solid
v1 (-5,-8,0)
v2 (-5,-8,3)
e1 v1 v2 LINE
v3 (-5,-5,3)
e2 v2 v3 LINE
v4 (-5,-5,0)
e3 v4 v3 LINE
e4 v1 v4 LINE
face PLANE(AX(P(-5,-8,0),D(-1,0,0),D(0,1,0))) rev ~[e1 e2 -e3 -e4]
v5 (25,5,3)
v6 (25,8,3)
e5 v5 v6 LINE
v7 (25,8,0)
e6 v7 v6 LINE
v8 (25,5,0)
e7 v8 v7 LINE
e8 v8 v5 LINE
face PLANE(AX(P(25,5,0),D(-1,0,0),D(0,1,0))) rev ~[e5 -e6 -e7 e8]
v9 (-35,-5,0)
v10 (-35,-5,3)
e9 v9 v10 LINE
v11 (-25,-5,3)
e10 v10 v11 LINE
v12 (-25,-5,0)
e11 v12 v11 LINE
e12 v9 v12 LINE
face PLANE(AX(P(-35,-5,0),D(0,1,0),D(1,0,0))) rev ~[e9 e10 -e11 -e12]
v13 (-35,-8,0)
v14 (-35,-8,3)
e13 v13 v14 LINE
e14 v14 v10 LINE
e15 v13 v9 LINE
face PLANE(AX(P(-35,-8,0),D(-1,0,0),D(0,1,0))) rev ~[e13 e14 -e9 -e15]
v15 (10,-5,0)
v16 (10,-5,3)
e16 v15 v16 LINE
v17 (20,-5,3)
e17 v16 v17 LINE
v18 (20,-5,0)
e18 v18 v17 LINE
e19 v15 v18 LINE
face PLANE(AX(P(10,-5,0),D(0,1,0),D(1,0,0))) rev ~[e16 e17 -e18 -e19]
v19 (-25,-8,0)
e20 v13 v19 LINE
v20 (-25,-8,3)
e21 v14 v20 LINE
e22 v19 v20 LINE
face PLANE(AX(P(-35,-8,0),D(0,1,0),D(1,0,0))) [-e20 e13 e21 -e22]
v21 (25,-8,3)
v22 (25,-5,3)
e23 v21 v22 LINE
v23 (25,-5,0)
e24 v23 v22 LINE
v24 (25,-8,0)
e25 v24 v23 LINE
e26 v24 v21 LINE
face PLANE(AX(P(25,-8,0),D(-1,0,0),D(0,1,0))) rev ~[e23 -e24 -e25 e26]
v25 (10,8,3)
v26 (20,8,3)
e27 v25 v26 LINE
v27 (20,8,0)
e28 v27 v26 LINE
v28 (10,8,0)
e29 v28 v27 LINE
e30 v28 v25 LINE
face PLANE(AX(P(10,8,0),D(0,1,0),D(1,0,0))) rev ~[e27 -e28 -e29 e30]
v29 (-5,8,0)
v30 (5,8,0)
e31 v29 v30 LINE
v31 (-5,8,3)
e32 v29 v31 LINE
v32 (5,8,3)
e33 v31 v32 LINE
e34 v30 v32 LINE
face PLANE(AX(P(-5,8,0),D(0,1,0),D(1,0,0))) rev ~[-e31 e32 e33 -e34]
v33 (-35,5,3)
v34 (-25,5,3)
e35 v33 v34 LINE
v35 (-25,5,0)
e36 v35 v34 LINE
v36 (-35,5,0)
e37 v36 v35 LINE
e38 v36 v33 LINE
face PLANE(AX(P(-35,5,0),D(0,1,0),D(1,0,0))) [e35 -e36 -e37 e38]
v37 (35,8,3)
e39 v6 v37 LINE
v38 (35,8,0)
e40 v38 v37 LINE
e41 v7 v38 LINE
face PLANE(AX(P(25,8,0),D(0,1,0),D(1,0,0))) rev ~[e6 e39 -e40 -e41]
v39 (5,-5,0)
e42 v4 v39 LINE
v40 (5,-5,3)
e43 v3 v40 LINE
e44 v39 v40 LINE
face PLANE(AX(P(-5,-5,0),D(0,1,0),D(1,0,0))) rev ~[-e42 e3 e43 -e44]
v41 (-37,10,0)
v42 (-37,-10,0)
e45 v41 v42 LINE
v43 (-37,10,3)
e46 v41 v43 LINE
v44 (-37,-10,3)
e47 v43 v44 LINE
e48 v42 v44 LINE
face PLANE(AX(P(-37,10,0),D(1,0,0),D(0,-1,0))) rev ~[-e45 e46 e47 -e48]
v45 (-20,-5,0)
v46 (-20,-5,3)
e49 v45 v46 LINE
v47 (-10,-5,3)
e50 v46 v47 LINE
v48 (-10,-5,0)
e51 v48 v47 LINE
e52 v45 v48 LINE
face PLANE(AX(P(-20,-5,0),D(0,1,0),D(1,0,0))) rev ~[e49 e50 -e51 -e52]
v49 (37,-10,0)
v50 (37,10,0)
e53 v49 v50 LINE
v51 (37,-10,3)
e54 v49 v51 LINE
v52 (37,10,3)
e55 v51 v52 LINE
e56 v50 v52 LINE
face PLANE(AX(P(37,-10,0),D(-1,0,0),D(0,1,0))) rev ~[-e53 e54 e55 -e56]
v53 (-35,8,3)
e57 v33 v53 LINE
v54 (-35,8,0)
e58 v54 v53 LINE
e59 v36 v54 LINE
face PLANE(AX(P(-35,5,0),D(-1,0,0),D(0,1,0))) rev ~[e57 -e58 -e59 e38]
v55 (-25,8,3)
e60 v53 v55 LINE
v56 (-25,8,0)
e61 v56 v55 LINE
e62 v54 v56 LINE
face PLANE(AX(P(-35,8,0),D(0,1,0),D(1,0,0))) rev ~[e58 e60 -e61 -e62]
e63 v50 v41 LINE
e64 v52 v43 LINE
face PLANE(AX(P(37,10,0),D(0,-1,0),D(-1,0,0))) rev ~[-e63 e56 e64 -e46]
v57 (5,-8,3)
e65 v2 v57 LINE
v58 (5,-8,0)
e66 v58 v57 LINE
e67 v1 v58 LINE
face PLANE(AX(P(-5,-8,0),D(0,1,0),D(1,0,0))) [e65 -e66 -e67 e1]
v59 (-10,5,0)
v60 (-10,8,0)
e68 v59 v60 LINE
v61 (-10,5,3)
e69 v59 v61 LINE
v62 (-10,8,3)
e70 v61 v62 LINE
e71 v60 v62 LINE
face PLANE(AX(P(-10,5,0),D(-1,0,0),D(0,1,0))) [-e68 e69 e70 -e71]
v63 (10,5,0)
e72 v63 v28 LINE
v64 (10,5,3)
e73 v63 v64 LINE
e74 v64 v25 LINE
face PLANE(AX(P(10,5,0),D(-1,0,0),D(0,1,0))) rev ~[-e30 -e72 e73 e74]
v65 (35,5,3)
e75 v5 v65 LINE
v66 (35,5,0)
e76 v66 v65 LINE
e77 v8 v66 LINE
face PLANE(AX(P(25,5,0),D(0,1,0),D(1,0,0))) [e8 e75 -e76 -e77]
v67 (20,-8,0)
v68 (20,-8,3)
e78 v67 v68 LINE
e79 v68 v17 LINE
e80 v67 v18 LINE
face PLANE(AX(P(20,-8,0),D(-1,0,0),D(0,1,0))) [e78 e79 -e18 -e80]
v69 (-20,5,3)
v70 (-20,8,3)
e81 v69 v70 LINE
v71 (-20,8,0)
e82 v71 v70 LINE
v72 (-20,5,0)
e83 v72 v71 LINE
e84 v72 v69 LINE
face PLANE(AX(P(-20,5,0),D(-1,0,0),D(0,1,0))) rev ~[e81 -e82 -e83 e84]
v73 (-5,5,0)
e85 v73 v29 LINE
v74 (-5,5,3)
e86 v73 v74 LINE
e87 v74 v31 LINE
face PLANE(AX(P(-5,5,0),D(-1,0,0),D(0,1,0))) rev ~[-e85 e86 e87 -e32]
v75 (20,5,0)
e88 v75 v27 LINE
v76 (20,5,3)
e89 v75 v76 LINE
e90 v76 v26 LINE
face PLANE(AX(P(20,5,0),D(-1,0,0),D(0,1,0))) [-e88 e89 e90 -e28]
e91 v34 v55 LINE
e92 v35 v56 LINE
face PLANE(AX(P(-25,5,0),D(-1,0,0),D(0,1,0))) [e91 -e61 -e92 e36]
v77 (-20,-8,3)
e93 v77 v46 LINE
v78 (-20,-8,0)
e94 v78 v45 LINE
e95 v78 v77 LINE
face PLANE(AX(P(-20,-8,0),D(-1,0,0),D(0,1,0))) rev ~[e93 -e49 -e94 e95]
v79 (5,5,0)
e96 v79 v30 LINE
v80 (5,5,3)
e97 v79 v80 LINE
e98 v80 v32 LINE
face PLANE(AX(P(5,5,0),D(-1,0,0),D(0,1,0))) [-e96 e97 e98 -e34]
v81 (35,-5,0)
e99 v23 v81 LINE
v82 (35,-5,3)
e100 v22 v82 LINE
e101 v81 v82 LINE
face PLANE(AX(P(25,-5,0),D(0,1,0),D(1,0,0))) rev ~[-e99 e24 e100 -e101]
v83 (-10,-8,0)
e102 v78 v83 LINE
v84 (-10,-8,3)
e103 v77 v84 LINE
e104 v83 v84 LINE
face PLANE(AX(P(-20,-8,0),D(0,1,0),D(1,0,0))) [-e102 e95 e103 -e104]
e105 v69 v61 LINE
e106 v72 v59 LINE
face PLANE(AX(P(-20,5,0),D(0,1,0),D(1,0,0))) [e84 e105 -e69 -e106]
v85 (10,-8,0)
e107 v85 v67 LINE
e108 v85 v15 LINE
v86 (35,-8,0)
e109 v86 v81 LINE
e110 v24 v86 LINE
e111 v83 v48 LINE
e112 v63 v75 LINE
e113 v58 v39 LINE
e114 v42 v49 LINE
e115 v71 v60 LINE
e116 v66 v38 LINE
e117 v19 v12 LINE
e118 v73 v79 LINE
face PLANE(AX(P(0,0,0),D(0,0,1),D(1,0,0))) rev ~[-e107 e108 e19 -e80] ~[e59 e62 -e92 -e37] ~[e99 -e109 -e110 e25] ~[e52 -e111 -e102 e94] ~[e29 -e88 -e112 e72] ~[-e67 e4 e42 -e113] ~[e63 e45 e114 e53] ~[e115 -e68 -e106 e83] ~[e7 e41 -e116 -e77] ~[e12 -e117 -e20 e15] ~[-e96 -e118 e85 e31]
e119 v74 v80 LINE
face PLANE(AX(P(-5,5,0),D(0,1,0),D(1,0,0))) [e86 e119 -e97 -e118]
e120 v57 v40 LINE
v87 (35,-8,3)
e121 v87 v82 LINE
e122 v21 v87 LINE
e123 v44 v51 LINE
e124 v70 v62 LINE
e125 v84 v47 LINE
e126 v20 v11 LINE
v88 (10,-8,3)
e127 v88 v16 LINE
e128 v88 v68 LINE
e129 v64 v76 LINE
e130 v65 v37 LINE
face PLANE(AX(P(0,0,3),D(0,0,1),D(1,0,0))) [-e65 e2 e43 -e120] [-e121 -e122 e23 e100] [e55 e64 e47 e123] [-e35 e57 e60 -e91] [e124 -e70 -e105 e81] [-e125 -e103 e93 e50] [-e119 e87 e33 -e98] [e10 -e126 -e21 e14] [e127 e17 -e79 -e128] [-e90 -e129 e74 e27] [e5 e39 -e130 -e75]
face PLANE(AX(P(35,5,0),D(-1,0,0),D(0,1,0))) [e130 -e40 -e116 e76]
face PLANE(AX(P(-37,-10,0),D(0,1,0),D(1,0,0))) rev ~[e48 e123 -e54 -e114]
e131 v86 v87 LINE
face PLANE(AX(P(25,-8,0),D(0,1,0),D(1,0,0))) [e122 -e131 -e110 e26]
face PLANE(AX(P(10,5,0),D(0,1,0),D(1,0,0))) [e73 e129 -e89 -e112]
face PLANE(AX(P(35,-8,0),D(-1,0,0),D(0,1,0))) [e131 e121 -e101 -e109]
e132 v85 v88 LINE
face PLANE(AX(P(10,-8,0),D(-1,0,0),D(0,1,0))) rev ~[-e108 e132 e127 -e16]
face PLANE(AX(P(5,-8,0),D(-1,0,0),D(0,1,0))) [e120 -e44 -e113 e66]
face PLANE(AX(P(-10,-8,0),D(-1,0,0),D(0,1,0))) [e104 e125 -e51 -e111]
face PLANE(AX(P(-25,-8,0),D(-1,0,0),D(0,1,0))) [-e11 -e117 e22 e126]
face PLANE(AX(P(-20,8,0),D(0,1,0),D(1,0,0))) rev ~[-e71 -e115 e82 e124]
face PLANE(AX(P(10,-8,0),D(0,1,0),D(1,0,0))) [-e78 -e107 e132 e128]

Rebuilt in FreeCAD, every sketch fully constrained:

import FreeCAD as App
import Part
import Sketcher
Q = App.Units.Quantity

doc = App.newDocument("Part")
params = doc.addObject("Spreadsheet::Sheet", "Params")
for row, (alias, value) in enumerate([
    ("sketch1_width", "74 mm"),
    ("sketch1_width2", "10 mm"),
    ("sketch1_height", "20 mm"),
    ("sketch1_height2", "3 mm"),
    ("pad1_length", "3 mm"),
], start=1):
    params.set(f"A{row}", alias)
    params.set(f"B{row}", "=" + value)
    params.setAlias(f"B{row}", alias)

body = doc.addObject("PartDesign::Body", "Body")

sketch1 = body.newObject("Sketcher::SketchObject", "Sketch")
sketch1.AttachmentSupport = (doc.getObject("XY_Plane"), [""])
sketch1.MapMode = "FlatFace"
sketch1.addGeometry([
    Part.LineSegment(App.Vector(-37, -10, 0), App.Vector(37, -10, 0)),
    Part.LineSegment(App.Vector(37, -10, 0), App.Vector(37, 10, 0)),
    Part.LineSegment(App.Vector(37, 10, 0), App.Vector(-37, 10, 0)),
    Part.LineSegment(App.Vector(-37, 10, 0), App.Vector(-37, -10, 0)),
    Part.LineSegment(App.Vector(-25, -8, 0), App.Vector(-35, -8, 0)),
    Part.LineSegment(App.Vector(-35, -8, 0), App.Vector(-35, -5, 0)),
    Part.LineSegment(App.Vector(-35, -5, 0), App.Vector(-25, -5, 0)),
    Part.LineSegment(App.Vector(-25, -5, 0), App.Vector(-25, -8, 0)),
    Part.LineSegment(App.Vector(-10, -8, 0), App.Vector(-20, -8, 0)),
    Part.LineSegment(App.Vector(-20, -8, 0), App.Vector(-20, -5, 0)),
    Part.LineSegment(App.Vector(-20, -5, 0), App.Vector(-10, -5, 0)),
    Part.LineSegment(App.Vector(-10, -5, 0), App.Vector(-10, -8, 0)),
    Part.LineSegment(App.Vector(5, -8, 0), App.Vector(-5, -8, 0)),
    Part.LineSegment(App.Vector(-5, -8, 0), App.Vector(-5, -5, 0)),
    Part.LineSegment(App.Vector(-5, -5, 0), App.Vector(5, -5, 0)),
    Part.LineSegment(App.Vector(5, -5, 0), App.Vector(5, -8, 0)),
    Part.LineSegment(App.Vector(20, -8, 0), App.Vector(10, -8, 0)),
    Part.LineSegment(App.Vector(10, -8, 0), App.Vector(10, -5, 0)),
    Part.LineSegment(App.Vector(10, -5, 0), App.Vector(20, -5, 0)),
    Part.LineSegment(App.Vector(20, -5, 0), App.Vector(20, -8, 0)),
    Part.LineSegment(App.Vector(35, -8, 0), App.Vector(25, -8, 0)),
    Part.LineSegment(App.Vector(25, -8, 0), App.Vector(25, -5, 0)),
    Part.LineSegment(App.Vector(25, -5, 0), App.Vector(35, -5, 0)),
    Part.LineSegment(App.Vector(35, -5, 0), App.Vector(35, -8, 0)),
    Part.LineSegment(App.Vector(-25, 5, 0), App.Vector(-35, 5, 0)),
    Part.LineSegment(App.Vector(-35, 5, 0), App.Vector(-35, 8, 0)),
    Part.LineSegment(App.Vector(-35, 8, 0), App.Vector(-25, 8, 0)),
    Part.LineSegment(App.Vector(-25, 8, 0), App.Vector(-25, 5, 0)),
    Part.LineSegment(App.Vector(-10, 5, 0), App.Vector(-20, 5, 0)),
    Part.LineSegment(App.Vector(-20, 5, 0), App.Vector(-20, 8, 0)),
    Part.LineSegment(App.Vector(-20, 8, 0), App.Vector(-10, 8, 0)),
    Part.LineSegment(App.Vector(-10, 8, 0), App.Vector(-10, 5, 0)),
    Part.LineSegment(App.Vector(5, 5, 0), App.Vector(-5, 5, 0)),
    Part.LineSegment(App.Vector(-5, 5, 0), App.Vector(-5, 8, 0)),
    Part.LineSegment(App.Vector(-5, 8, 0), App.Vector(5, 8, 0)),
    Part.LineSegment(App.Vector(5, 8, 0), App.Vector(5, 5, 0)),
    Part.LineSegment(App.Vector(20, 5, 0), App.Vector(10, 5, 0)),
    Part.LineSegment(App.Vector(10, 5, 0), App.Vector(10, 8, 0)),
    Part.LineSegment(App.Vector(10, 8, 0), App.Vector(20, 8, 0)),
    Part.LineSegment(App.Vector(20, 8, 0), App.Vector(20, 5, 0)),
    Part.LineSegment(App.Vector(35, 5, 0), App.Vector(25, 5, 0)),
    Part.LineSegment(App.Vector(25, 5, 0), App.Vector(25, 8, 0)),
    Part.LineSegment(App.Vector(25, 8, 0), App.Vector(35, 8, 0)),
    Part.LineSegment(App.Vector(35, 8, 0), App.Vector(35, 5, 0)),
], False)
sketch1.addConstraint([
    Sketcher.Constraint("Coincident", 0, 2, 1, 1),
    Sketcher.Constraint("Coincident", 1, 2, 2, 1),
    Sketcher.Constraint("Coincident", 2, 2, 3, 1),
    Sketcher.Constraint("Coincident", 3, 2, 0, 1),
    Sketcher.Constraint("Coincident", 4, 2, 5, 1),
    Sketcher.Constraint("Coincident", 5, 2, 6, 1),
    Sketcher.Constraint("Coincident", 6, 2, 7, 1),
    Sketcher.Constraint("Coincident", 7, 2, 4, 1),
    Sketcher.Constraint("Coincident", 8, 2, 9, 1),
    Sketcher.Constraint("Coincident", 9, 2, 10, 1),
    Sketcher.Constraint("Coincident", 10, 2, 11, 1),
    Sketcher.Constraint("Coincident", 11, 2, 8, 1),
    Sketcher.Constraint("Coincident", 12, 2, 13, 1),
    Sketcher.Constraint("Coincident", 13, 2, 14, 1),
    Sketcher.Constraint("Coincident", 14, 2, 15, 1),
    Sketcher.Constraint("Coincident", 15, 2, 12, 1),
    Sketcher.Constraint("Coincident", 16, 2, 17, 1),
    Sketcher.Constraint("Coincident", 17, 2, 18, 1),
    Sketcher.Constraint("Coincident", 18, 2, 19, 1),
    Sketcher.Constraint("Coincident", 19, 2, 16, 1),
    Sketcher.Constraint("Coincident", 20, 2, 21, 1),
    Sketcher.Constraint("Coincident", 21, 2, 22, 1),
    Sketcher.Constraint("Coincident", 22, 2, 23, 1),
    Sketcher.Constraint("Coincident", 23, 2, 20, 1),
    Sketcher.Constraint("Coincident", 24, 2, 25, 1),
    Sketcher.Constraint("Coincident", 25, 2, 26, 1),
    Sketcher.Constraint("Coincident", 26, 2, 27, 1),
    Sketcher.Constraint("Coincident", 27, 2, 24, 1),
    Sketcher.Constraint("Coincident", 28, 2, 29, 1),
    Sketcher.Constraint("Coincident", 29, 2, 30, 1),
    Sketcher.Constraint("Coincident", 30, 2, 31, 1),
    Sketcher.Constraint("Coincident", 31, 2, 28, 1),
    Sketcher.Constraint("Coincident", 32, 2, 33, 1),
    Sketcher.Constraint("Coincident", 33, 2, 34, 1),
    Sketcher.Constraint("Coincident", 34, 2, 35, 1),
    Sketcher.Constraint("Coincident", 35, 2, 32, 1),
    Sketcher.Constraint("Coincident", 36, 2, 37, 1),
    Sketcher.Constraint("Coincident", 37, 2, 38, 1),
    Sketcher.Constraint("Coincident", 38, 2, 39, 1),
    Sketcher.Constraint("Coincident", 39, 2, 36, 1),
    Sketcher.Constraint("Coincident", 40, 2, 41, 1),
    Sketcher.Constraint("Coincident", 41, 2, 42, 1),
    Sketcher.Constraint("Coincident", 42, 2, 43, 1),
    Sketcher.Constraint("Coincident", 43, 2, 40, 1),
    Sketcher.Constraint("Horizontal", 0),
    Sketcher.Constraint("Vertical", 1),
    Sketcher.Constraint("Horizontal", 2),
    Sketcher.Constraint("Vertical", 3),
    Sketcher.Constraint("Horizontal", 4),
    Sketcher.Constraint("Vertical", 5),
    Sketcher.Constraint("Horizontal", 6),
    Sketcher.Constraint("Vertical", 7),
    Sketcher.Constraint("Horizontal", 8),
    Sketcher.Constraint("Vertical", 9),
    Sketcher.Constraint("Horizontal", 10),
    Sketcher.Constraint("Vertical", 11),
    Sketcher.Constraint("Horizontal", 12),
    Sketcher.Constraint("Vertical", 13),
    Sketcher.Constraint("Horizontal", 14),
    Sketcher.Constraint("Vertical", 15),
    Sketcher.Constraint("Horizontal", 16),
    Sketcher.Constraint("Vertical", 17),
    Sketcher.Constraint("Horizontal", 18),
    Sketcher.Constraint("Vertical", 19),
    Sketcher.Constraint("Horizontal", 20),
    Sketcher.Constraint("Vertical", 21),
    Sketcher.Constraint("Horizontal", 22),
    Sketcher.Constraint("Vertical", 23),
    Sketcher.Constraint("Horizontal", 24),
    Sketcher.Constraint("Vertical", 25),
    Sketcher.Constraint("Horizontal", 26),
    Sketcher.Constraint("Vertical", 27),
    Sketcher.Constraint("Horizontal", 28),
    Sketcher.Constraint("Vertical", 29),
    Sketcher.Constraint("Horizontal", 30),
    Sketcher.Constraint("Vertical", 31),
    Sketcher.Constraint("Horizontal", 32),
    Sketcher.Constraint("Vertical", 33),
    Sketcher.Constraint("Horizontal", 34),
    Sketcher.Constraint("Vertical", 35),
    Sketcher.Constraint("Horizontal", 36),
    Sketcher.Constraint("Vertical", 37),
    Sketcher.Constraint("Horizontal", 38),
    Sketcher.Constraint("Vertical", 39),
    Sketcher.Constraint("Horizontal", 40),
    Sketcher.Constraint("Vertical", 41),
    Sketcher.Constraint("Horizontal", 42),
    Sketcher.Constraint("Vertical", 43),
    Sketcher.Constraint("Symmetric", 0, 2, 2, 2, -1, 1),
    Sketcher.Constraint("Symmetric", 22, 2, 24, 2, -1, 1),
    Sketcher.Constraint("Symmetric", 20, 2, 26, 2, -1, 1),
    Sketcher.Constraint("Symmetric", 18, 2, 28, 2, -1, 1),
    Sketcher.Constraint("Symmetric", 16, 2, 30, 2, -1, 1),
    Sketcher.Constraint("Symmetric", 14, 2, 32, 2, -1, 1),
    Sketcher.Constraint("Symmetric", 12, 2, 34, 2, -1, 1),
    Sketcher.Constraint("Symmetric", 10, 2, 36, 2, -1, 1),
    Sketcher.Constraint("Symmetric", 8, 2, 38, 2, -1, 1),
    Sketcher.Constraint("Symmetric", 6, 2, 40, 2, -1, 1),
    Sketcher.Constraint("Symmetric", 4, 2, 42, 2, -1, 1),
    Sketcher.Constraint("Symmetric", 11, 2, 16, 2, -2),
    Sketcher.Constraint("Symmetric", 9, 2, 18, 2, -2),
    Sketcher.Constraint("Symmetric", 7, 2, 20, 2, -2),
    Sketcher.Constraint("Symmetric", 5, 2, 22, 2, -2),
    Sketcher.Constraint("Horizontal", 7, 2, 8, 2),
    Sketcher.Constraint("Horizontal", 6, 2, 9, 2),
    Sketcher.Constraint("Horizontal", 11, 2, 12, 2),
    Sketcher.Constraint("Horizontal", 10, 2, 13, 2),
    Sketcher.Constraint("Vertical", 13, 2, 32, 2),
    Sketcher.Constraint("Equal", 6, 8),
    Sketcher.Constraint("Equal", 10, 12),
    Sketcher.Constraint("DistanceX", 0, 1, 0, 2, Q("74 mm")),
    Sketcher.Constraint("DistanceX", 4, 2, 4, 1, Q("10 mm")),
    Sketcher.Constraint("DistanceY", 1, 1, 1, 2, Q("20 mm")),
    Sketcher.Constraint("DistanceY", 5, 1, 5, 2, Q("3 mm")),
    Sketcher.Constraint("DistanceX", 4, 2, -1, 1, Q("35 mm")),
    Sketcher.Constraint("DistanceY", 4, 2, -1, 1, Q("8 mm")),
    Sketcher.Constraint("DistanceX", 8, 2, -1, 1, Q("20 mm")),
])
sketch1.setExpression("Constraints[110]", "Params.sketch1_width")
sketch1.setExpression("Constraints[111]", "Params.sketch1_width2")
sketch1.setExpression("Constraints[112]", "Params.sketch1_height")
sketch1.setExpression("Constraints[113]", "Params.sketch1_height2")
pad1 = body.newObject("PartDesign::Pad", "Pad")
pad1.Profile = sketch1
pad1.setExpression("Length", "Params.pad1_length")

doc.recompute()
